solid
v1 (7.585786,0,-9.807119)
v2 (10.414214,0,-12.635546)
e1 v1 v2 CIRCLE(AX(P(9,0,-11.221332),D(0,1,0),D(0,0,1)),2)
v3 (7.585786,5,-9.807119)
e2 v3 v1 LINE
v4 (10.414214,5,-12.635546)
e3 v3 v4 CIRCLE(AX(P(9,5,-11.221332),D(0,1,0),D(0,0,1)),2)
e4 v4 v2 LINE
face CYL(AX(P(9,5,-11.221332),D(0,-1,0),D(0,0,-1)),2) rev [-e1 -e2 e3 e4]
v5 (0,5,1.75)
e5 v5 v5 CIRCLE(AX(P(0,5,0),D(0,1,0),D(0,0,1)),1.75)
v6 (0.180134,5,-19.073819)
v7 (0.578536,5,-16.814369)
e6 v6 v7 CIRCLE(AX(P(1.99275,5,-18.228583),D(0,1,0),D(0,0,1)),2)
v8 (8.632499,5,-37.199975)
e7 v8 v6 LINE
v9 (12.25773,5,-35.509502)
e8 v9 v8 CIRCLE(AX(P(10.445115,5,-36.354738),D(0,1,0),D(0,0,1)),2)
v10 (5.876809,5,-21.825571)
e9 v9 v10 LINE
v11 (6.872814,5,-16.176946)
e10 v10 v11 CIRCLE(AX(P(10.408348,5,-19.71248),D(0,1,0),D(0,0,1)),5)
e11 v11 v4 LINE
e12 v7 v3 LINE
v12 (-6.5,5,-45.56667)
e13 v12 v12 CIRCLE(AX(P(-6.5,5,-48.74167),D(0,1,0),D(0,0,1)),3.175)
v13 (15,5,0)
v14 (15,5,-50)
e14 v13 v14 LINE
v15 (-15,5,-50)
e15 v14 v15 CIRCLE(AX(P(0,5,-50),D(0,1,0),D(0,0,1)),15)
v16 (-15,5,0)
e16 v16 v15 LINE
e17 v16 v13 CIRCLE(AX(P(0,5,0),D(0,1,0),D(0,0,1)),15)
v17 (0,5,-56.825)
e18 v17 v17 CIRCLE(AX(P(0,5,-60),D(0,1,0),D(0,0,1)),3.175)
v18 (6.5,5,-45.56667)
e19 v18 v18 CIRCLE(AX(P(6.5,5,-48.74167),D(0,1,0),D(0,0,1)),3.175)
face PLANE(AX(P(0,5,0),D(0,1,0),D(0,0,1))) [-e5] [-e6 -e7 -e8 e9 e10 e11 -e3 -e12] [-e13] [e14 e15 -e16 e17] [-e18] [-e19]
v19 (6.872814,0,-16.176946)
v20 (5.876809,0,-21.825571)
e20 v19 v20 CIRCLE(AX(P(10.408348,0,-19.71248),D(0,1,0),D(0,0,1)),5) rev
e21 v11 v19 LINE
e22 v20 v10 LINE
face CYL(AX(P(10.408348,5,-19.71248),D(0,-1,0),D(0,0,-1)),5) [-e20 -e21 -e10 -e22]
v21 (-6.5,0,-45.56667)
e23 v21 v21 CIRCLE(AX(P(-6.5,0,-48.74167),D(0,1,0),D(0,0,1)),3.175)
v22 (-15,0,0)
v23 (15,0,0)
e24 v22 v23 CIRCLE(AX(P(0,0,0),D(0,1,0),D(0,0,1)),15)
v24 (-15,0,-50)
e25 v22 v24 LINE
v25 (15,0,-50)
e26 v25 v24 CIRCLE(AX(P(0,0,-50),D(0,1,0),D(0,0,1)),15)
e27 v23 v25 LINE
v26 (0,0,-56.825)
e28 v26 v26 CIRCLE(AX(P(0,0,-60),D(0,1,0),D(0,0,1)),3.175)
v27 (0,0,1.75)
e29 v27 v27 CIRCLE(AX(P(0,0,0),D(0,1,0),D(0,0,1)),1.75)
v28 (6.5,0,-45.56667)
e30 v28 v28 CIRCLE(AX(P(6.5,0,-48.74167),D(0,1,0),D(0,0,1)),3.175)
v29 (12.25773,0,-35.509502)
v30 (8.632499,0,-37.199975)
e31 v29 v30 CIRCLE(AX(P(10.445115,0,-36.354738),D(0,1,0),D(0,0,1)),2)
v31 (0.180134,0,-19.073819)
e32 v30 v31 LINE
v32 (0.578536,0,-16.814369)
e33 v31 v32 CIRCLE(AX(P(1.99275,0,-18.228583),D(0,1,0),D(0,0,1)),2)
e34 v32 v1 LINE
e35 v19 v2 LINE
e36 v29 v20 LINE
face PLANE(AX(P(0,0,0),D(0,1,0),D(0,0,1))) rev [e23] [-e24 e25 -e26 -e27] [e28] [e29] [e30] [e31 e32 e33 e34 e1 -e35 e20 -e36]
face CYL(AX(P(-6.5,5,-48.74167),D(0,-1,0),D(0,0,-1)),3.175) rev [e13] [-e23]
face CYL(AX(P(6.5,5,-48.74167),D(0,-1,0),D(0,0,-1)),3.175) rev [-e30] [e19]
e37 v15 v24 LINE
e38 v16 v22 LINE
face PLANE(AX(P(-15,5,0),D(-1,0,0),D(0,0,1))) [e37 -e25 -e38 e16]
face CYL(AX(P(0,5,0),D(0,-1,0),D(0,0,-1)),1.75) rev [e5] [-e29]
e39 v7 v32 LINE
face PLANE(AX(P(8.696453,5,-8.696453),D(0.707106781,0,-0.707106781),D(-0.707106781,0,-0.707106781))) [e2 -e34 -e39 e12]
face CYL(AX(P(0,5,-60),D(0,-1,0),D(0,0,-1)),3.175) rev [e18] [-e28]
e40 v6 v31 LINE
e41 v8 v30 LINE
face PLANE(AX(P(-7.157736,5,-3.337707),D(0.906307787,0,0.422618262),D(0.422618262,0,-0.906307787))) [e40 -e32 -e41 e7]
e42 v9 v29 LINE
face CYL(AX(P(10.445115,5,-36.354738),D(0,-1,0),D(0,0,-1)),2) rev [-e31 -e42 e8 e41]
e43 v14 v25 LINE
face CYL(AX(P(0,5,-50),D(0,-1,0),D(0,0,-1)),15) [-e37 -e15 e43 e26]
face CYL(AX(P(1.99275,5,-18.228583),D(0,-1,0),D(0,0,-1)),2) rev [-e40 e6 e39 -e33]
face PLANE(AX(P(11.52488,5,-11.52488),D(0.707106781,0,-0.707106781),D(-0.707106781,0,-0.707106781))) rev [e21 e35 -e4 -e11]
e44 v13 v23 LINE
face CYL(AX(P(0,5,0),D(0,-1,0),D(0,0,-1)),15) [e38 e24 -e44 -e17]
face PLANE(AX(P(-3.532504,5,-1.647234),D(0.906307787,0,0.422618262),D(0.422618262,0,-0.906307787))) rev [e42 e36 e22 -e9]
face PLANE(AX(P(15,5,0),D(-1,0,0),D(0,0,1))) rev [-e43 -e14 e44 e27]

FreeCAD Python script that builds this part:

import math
import FreeCAD as App
import Part
import Sketcher
from FreeCAD import Vector
Q = App.Units.Quantity


def edges_at(feature, points):
    """Names of the edges that pass closest to the given points."""
    edges = feature.Shape.Edges
    near = lambda p: min(range(len(edges)), key=lambda i: edges[i].distToShape(Part.Vertex(*p))[0])
    return sorted({f"Edge{near(p) + 1}" for p in points})

doc = App.newDocument("Part")
params = doc.addObject("Spreadsheet::Sheet", "Params")
for row, (alias, value) in enumerate([
    ("sketch1_radius", "15 mm"),
    ("sketch1_radius2", "2 mm"),
    ("sketch1_diameter", "3.5 mm"),
    ("sketch1_diameter2", "6.35 mm"),
    ("sketch1_height", "50 mm"),
    ("pad1_length", "5 mm"),
    ("fillet_radius", "5 mm"),
], start=1):
    params.set(f"A{row}", alias)
    params.set(f"B{row}", "=" + value)
    params.setAlias(f"B{row}", alias)

body = doc.addObject("PartDesign::Body", "Body")

# Sketch on XZ plane
sketch1 = body.newObject("Sketcher::SketchObject", "Sketch")
sketch1.AttachmentSupport = (doc.getObject("XZ_Plane"), [""])
sketch1.MapMode = "FlatFace"
sketch1.addGeometry(Part.LineSegment(Vector(15, 0, 0), Vector(15, -50, 0)), False)
sketch1.addGeometry(Part.ArcOfCircle(Part.Circle(Vector(0, -50, 0), Vector(0, 0, 1), 15), math.radians(180), math.radians(360)), False)
sketch1.addGeometry(Part.LineSegment(Vector(-15, -50, 0), Vector(-15, 0, 0)), False)
sketch1.addGeometry(Part.ArcOfCircle(Part.Circle(Vector(0, 0, 0), Vector(0, 0, 1), 15), math.radians(0), math.radians(180)), False)
sketch1.addGeometry(Part.Circle(Vector(0, 0, 0), Vector(0, 0, 1), 1.8), False)
sketch1.addGeometry(Part.ArcOfCircle(Part.Circle(Vector(9, -11.2, 0), Vector(0, 0, 1), 2), math.radians(-45), math.radians(135)), False)
sketch1.addGeometry(Part.LineSegment(Vector(7.6, -9.8, 0), Vector(0.6, -16.8, 0)), False)
sketch1.addGeometry(Part.ArcOfCircle(Part.Circle(Vector(2, -18.2, 0), Vector(0, 0, 1), 2), math.radians(135), math.radians(205)), False)
sketch1.addGeometry(Part.LineSegment(Vector(0.2, -19.1, 0), Vector(8.6, -37.2, 0)), False)
sketch1.addGeometry(Part.ArcOfCircle(Part.Circle(Vector(10.4, -36.4, 0), Vector(0, 0, 1), 2), math.radians(-155), math.radians(25)), False)
sketch1.addGeometry(Part.LineSegment(Vector(12.3, -35.5, 0), Vector(4.4, -18.7, 0)), False)
sketch1.addGeometry(Part.LineSegment(Vector(4.4, -18.7, 0), Vector(10.4, -12.6, 0)), False)
sketch1.addGeometry(Part.Circle(Vector(-6.5, -48.7, 0), Vector(0, 0, 1), 3.2), False)
sketch1.addGeometry(Part.Circle(Vector(0, -60, 0), Vector(0, 0, 1), 3.2), False)
sketch1.addGeometry(Part.Circle(Vector(6.5, -48.7, 0), Vector(0, 0, 1), 3.2), False)
sketch1.addConstraint(Sketcher.Constraint("Tangent", 0, 2, 1, 2))
sketch1.addConstraint(Sketcher.Constraint("Tangent", 1, 1, 2, 1))
sketch1.addConstraint(Sketcher.Constraint("Tangent", 2, 2, 3, 2))
sketch1.addConstraint(Sketcher.Constraint("Tangent", 3, 1, 0, 1))
sketch1.addConstraint(Sketcher.Constraint("Tangent", 5, 2, 6, 1))
sketch1.addConstraint(Sketcher.Constraint("Tangent", 6, 2, 7, 1))
sketch1.addConstraint(Sketcher.Constraint("Tangent", 7, 2, 8, 1))
sketch1.addConstraint(Sketcher.Constraint("Tangent", 8, 2, 9, 1))
sketch1.addConstraint(Sketcher.Constraint("Tangent", 9, 2, 10, 1))
sketch1.addConstraint(Sketcher.Constraint("Coincident", 10, 2, 11, 1))
sketch1.addConstraint(Sketcher.Constraint("Tangent", 11, 2, 5, 1))
sketch1.addConstraint(Sketcher.Constraint("Vertical", 0))
sketch1.addConstraint(Sketcher.Constraint("Vertical", 2))
sketch1.addConstraint(Sketcher.Constraint("Coincident", 3, 3, -1, 1))
sketch1.addConstraint(Sketcher.Constraint("Coincident", 4, 3, -1, 1))
sketch1.addConstraint(Sketcher.Constraint("Equal", 5, 7))
sketch1.addConstraint(Sketcher.Constraint("Equal", 7, 9))
sketch1.addConstraint(Sketcher.Constraint("Equal", 12, 13))
sketch1.addConstraint(Sketcher.Constraint("Equal", 13, 14))
sketch1.addConstraint(Sketcher.Constraint("Symmetric", 12, 3, 14, 3, -2))
sketch1.addConstraint(Sketcher.Constraint("PointOnObject", 13, 3, -2))
sketch1.addConstraint(Sketcher.Constraint("Parallel", 8, 10))
sketch1.addConstraint(Sketcher.Constraint("Parallel", 6, 11))
sketch1.addConstraint(Sketcher.Constraint("Radius", 1, 15.0))
sketch1.addConstraint(Sketcher.Constraint("Radius", 5, 2.0))
sketch1.addConstraint(Sketcher.Constraint("Diameter", 4, 3.5))
sketch1.addConstraint(Sketcher.Constraint("Diameter", 12, 6.35))
sketch1.addConstraint(Sketcher.Constraint("DistanceY", 0, 2, 0, 1, 50.0))
sketch1.addConstraint(Sketcher.Constraint("Angle", 6, Q("-135 deg")))
sketch1.addConstraint(Sketcher.Constraint("Angle", 8, Q("-65 deg")))
sketch1.addConstraint(Sketcher.Constraint("Distance", 8, 20.0))
sketch1.addConstraint(Sketcher.Constraint("DistanceX", -1, 1, 5, 3, 9.0))
sketch1.addConstraint(Sketcher.Constraint("DistanceY", 13, 3, -1, 1, 60.0))
sketch1.addConstraint(Sketcher.Constraint("DistanceX", 12, 3, 14, 3, 13.0))
sketch1.addConstraint(Sketcher.Constraint("DistanceX", -1, 1, 8, 2, 8.632499))
sketch1.addConstraint(Sketcher.Constraint("DistanceY", 9, 2, -1, 1, 35.509502))
sketch1.addConstraint(Sketcher.Constraint("DistanceY", 12, 3, -1, 1, 48.74167))
sketch1.setExpression("Constraints[23]", "Params.sketch1_radius")
sketch1.setExpression("Constraints[24]", "Params.sketch1_radius2")
sketch1.setExpression("Constraints[25]", "Params.sketch1_diameter")
sketch1.setExpression("Constraints[26]", "Params.sketch1_diameter2")
sketch1.setExpression("Constraints[27]", "Params.sketch1_height")
pad1 = body.newObject("PartDesign::Pad", "Pad")
pad1.Profile = sketch1
pad1.setExpression("Length", "Params.pad1_length")
pad1.Reversed = True
doc.recompute()

fillet = body.newObject("PartDesign::Fillet", "Fillet")
fillet.Base = (pad1, edges_at(pad1, [(4.397, 2.5, -18.653)]))
fillet.setExpression("Radius", "Params.fillet_radius")

doc.recompute()
